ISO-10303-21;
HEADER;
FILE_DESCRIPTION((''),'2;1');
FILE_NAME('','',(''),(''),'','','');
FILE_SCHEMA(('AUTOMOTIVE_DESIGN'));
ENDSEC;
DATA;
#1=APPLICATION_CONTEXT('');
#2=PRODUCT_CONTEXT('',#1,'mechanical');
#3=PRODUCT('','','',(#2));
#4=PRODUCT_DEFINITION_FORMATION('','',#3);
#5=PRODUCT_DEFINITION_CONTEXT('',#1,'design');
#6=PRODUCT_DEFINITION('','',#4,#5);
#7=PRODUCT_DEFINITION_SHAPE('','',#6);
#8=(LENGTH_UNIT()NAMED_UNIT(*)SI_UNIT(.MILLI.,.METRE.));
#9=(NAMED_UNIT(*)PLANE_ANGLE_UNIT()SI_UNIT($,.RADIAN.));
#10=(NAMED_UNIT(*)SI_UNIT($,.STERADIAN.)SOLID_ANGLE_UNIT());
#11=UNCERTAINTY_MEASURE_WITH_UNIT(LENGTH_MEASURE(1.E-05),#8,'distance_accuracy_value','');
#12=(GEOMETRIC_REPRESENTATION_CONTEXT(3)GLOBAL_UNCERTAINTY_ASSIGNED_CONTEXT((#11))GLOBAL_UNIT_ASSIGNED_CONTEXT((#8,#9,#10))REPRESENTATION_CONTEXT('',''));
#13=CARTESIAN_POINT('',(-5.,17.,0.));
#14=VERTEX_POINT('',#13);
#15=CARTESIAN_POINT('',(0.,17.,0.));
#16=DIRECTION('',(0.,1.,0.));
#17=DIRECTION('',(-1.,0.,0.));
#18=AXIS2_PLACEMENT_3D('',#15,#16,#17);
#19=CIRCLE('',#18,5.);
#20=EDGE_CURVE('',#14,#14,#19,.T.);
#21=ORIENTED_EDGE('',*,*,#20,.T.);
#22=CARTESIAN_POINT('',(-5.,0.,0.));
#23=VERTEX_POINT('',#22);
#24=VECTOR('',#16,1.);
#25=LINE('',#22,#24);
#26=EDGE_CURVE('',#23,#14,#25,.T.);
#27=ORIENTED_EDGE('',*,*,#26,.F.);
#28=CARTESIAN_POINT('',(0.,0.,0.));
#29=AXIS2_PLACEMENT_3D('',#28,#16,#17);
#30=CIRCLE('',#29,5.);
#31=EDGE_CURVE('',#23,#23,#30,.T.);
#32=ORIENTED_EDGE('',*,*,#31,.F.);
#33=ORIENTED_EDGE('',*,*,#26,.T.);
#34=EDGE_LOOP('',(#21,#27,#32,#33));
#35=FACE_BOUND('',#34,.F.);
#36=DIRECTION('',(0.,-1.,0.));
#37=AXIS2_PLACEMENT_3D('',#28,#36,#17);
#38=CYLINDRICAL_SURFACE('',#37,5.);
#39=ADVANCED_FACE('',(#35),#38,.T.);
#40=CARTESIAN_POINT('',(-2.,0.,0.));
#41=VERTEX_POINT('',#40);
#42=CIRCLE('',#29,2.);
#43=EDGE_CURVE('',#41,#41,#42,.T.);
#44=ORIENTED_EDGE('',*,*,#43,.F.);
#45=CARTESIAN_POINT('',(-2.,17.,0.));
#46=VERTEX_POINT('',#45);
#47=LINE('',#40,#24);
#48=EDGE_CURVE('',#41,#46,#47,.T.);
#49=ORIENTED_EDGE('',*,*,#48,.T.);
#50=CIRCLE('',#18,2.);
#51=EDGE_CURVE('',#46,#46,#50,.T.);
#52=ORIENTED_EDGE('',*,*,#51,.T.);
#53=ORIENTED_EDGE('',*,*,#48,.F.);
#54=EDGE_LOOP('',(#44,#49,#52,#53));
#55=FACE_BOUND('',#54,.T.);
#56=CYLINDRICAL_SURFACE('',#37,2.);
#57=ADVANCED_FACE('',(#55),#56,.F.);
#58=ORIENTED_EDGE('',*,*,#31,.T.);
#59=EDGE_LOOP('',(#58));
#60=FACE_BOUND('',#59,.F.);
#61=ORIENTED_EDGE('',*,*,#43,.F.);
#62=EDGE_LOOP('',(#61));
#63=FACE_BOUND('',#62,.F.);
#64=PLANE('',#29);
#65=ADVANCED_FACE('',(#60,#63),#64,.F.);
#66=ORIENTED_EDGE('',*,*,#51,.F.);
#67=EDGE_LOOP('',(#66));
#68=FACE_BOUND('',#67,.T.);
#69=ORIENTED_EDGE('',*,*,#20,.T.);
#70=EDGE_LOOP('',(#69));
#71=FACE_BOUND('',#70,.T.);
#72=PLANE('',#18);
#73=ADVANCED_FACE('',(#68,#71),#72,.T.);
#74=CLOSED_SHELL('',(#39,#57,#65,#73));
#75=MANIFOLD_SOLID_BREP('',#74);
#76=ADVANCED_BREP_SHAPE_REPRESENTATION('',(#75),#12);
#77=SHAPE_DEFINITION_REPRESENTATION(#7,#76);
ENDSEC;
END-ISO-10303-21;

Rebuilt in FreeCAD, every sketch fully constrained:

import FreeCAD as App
import Part
import Sketcher

V = App.Vector
Q = App.Units.Quantity

doc = App.newDocument("Part")
params = doc.addObject("Spreadsheet::Sheet", "Params")
for row, (alias, value) in enumerate([
    ("sketch1_diameter", "10 mm"),
    ("sketch1_diameter2", "4 mm"),
    ("pad1_length", "17 mm"),
], start=1):
    params.set(f"A{row}", alias)
    params.set(f"B{row}", "=" + value)
    params.setAlias(f"B{row}", alias)

body = doc.addObject("PartDesign::Body", "Body")

# Sketch on XZ plane
sketch1 = body.newObject("Sketcher::SketchObject", "Sketch")
sketch1.AttachmentSupport = (doc.getObject("XZ_Plane"), [""])
sketch1.MapMode = "FlatFace"
sketch1.addGeometry([
    Part.Circle(V(0, 0, 0), V(0, 0, 1), 5),
    Part.Circle(V(0, 0, 0), V(0, 0, 1), 2),
], False)
sketch1.addConstraint([
    Sketcher.Constraint("Coincident", 0, 3, -1, 1),
    Sketcher.Constraint("Coincident", 1, 3, -1, 1),
    Sketcher.Constraint("Diameter", 0, Q("10 mm")),
    Sketcher.Constraint("Diameter", 1, Q("4 mm")),
])
sketch1.setExpression("Constraints[2]", "Params.sketch1_diameter")
sketch1.setExpression("Constraints[3]", "Params.sketch1_diameter2")
pad1 = body.newObject("PartDesign::Pad", "Pad")
pad1.Profile = sketch1
pad1.setExpression("Length", "Params.pad1_length")
pad1.Reversed = True

doc.recompute()
